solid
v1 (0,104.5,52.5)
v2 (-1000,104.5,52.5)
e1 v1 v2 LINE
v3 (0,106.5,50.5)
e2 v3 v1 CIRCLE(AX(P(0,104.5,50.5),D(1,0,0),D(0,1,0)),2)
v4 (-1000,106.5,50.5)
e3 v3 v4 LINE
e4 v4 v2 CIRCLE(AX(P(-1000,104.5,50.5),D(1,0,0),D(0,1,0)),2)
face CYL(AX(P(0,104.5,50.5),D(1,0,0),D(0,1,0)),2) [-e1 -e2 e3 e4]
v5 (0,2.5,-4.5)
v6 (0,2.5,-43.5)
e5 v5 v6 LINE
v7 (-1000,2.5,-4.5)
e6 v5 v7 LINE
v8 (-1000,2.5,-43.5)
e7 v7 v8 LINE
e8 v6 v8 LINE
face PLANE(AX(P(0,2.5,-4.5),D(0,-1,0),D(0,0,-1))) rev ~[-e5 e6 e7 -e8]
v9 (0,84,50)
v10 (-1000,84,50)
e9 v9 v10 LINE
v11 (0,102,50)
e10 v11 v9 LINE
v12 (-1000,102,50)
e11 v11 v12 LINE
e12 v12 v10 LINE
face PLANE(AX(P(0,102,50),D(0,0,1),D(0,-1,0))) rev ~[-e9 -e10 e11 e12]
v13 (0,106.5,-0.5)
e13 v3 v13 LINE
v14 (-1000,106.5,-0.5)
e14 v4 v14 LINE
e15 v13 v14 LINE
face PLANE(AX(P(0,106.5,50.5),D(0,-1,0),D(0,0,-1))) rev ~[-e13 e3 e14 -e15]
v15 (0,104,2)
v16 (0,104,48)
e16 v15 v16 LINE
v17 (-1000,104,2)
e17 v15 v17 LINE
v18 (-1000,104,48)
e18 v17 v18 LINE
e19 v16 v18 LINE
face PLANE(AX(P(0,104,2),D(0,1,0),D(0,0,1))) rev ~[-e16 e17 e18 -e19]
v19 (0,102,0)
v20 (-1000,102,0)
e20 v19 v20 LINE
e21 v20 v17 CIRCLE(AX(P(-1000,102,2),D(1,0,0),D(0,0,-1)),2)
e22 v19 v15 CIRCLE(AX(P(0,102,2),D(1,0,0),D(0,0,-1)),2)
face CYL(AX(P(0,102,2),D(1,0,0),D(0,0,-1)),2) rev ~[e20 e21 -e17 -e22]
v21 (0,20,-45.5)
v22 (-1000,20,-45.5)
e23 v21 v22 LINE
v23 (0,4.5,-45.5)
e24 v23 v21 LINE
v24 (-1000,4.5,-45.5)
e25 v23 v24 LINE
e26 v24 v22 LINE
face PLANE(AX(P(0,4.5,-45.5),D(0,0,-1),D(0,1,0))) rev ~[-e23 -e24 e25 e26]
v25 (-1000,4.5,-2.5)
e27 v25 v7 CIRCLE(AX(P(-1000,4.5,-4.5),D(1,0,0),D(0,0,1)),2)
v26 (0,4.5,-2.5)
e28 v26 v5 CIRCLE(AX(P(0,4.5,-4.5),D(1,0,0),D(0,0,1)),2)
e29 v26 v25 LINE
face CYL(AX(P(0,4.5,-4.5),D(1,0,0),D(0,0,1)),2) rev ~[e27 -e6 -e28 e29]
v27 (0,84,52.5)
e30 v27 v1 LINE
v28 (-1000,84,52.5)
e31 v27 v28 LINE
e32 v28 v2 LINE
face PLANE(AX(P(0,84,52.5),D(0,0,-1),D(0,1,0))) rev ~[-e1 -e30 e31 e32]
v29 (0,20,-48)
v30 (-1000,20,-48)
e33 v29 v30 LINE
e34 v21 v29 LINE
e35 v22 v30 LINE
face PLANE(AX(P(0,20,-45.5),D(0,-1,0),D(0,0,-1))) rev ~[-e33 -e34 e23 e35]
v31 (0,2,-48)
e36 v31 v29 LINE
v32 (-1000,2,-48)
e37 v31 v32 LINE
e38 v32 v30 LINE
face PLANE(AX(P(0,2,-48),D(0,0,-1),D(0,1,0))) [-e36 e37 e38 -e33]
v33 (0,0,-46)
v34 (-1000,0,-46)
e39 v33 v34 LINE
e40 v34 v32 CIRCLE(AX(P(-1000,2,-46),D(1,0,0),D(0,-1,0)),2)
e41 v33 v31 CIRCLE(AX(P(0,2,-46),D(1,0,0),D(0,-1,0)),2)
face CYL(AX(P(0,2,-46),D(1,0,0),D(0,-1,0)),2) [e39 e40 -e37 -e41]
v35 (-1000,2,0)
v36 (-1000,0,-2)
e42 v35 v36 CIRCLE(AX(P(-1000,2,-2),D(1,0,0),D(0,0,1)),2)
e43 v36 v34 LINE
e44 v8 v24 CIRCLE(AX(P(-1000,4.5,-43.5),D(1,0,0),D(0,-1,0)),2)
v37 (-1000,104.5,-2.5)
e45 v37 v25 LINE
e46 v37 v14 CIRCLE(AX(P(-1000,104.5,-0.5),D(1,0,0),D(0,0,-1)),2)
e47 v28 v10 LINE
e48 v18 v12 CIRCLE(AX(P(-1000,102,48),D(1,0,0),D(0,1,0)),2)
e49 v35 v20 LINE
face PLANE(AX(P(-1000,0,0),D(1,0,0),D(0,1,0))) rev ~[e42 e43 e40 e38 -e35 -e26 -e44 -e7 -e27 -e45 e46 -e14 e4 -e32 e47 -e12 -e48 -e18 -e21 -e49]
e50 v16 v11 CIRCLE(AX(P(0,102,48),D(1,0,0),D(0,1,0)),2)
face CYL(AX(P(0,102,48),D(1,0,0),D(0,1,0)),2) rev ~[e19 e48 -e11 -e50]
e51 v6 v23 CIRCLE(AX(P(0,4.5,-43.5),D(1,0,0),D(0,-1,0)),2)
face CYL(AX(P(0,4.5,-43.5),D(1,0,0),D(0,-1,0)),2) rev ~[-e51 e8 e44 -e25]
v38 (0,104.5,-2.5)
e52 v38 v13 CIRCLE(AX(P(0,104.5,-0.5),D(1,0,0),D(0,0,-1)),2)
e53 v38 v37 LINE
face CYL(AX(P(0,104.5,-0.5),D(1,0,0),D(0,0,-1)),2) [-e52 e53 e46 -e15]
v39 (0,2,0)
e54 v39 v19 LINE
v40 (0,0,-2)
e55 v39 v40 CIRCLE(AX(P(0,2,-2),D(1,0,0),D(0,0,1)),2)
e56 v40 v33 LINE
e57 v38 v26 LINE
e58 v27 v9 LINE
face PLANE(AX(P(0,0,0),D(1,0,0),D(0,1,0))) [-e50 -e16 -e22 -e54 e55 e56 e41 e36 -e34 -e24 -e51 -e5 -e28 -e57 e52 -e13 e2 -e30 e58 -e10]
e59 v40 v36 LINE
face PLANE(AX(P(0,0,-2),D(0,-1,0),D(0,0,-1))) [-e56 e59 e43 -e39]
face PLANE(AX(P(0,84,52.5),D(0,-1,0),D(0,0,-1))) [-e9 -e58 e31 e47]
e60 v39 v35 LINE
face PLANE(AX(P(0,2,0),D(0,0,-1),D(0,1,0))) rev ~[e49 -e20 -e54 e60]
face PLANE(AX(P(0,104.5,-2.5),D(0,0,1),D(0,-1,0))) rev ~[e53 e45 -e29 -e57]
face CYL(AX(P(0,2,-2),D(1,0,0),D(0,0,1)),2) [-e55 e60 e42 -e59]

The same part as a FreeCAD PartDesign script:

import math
import FreeCAD as App
import Part
import Sketcher

V = App.Vector

doc = App.newDocument("Part")
body = doc.addObject("PartDesign::Body", "Body")

sketch1 = body.newObject("Sketcher::SketchObject", "Sketch")
sketch1.AttachmentSupport = (doc.getObject("YZ_Plane"), [""])
sketch1.MapMode = "FlatFace"
sketch1.addGeometry([
    Part.LineSegment(V(102, 0, 0), V(2, 0, 0)),
    Part.ArcOfCircle(Part.Circle(V(2, -2, 0), V(0, 0, 1), 2), math.radians(90), math.radians(180)),
    Part.LineSegment(V(0, -2, 0), V(0, -46, 0)),
    Part.ArcOfCircle(Part.Circle(V(2, -46, 0), V(0, 0, 1), 2), math.radians(180), math.radians(270)),
    Part.LineSegment(V(2, -48, 0), V(20, -48, 0)),
    Part.LineSegment(V(20, -48, 0), V(20, -45.5, 0)),
    Part.LineSegment(V(20, -45.5, 0), V(4.5, -45.5, 0)),
    Part.ArcOfCircle(Part.Circle(V(4.5, -43.5, 0), V(0, 0, 1), 2), math.radians(180), math.radians(270)),
    Part.LineSegment(V(2.5, -43.5, 0), V(2.5, -4.5, 0)),
    Part.ArcOfCircle(Part.Circle(V(4.5, -4.5, 0), V(0, 0, 1), 2), math.radians(90), math.radians(180)),
    Part.LineSegment(V(4.5, -2.5, 0), V(104.5, -2.5, 0)),
    Part.ArcOfCircle(Part.Circle(V(104.5, -0.5, 0), V(0, 0, 1), 2), math.radians(-90), math.radians(0)),
    Part.LineSegment(V(106.5, -0.5, 0), V(106.5, 50.5, 0)),
    Part.ArcOfCircle(Part.Circle(V(104.5, 50.5, 0), V(0, 0, 1), 2), math.radians(0), math.radians(90)),
    Part.LineSegment(V(104.5, 52.5, 0), V(84, 52.5, 0)),
    Part.LineSegment(V(84, 52.5, 0), V(84, 50, 0)),
    Part.LineSegment(V(84, 50, 0), V(102, 50, 0)),
    Part.ArcOfCircle(Part.Circle(V(102, 48, 0), V(0, 0, 1), 2), math.radians(0), math.radians(90)),
    Part.LineSegment(V(104, 48, 0), V(104, 2, 0)),
    Part.ArcOfCircle(Part.Circle(V(102, 2, 0), V(0, 0, 1), 2), math.radians(-90), math.radians(0)),
], False)
sketch1.addConstraint([
    Sketcher.Constraint("Tangent", 0, 2, 1, 1),
    Sketcher.Constraint("Tangent", 1, 2, 2, 1),
    Sketcher.Constraint("Tangent", 2, 2, 3, 1),
    Sketcher.Constraint("Tangent", 3, 2, 4, 1),
    Sketcher.Constraint("Coincident", 4, 2, 5, 1),
    Sketcher.Constraint("Coincident", 5, 2, 6, 1),
    Sketcher.Constraint("Tangent", 6, 2, 7, 2),
    Sketcher.Constraint("Tangent", 7, 1, 8, 1),
    Sketcher.Constraint("Tangent", 8, 2, 9, 2),
    Sketcher.Constraint("Tangent", 9, 1, 10, 1),
    Sketcher.Constraint("Tangent", 10, 2, 11, 1),
    Sketcher.Constraint("Tangent", 11, 2, 12, 1),
    Sketcher.Constraint("Tangent", 12, 2, 13, 1),
    Sketcher.Constraint("Tangent", 13, 2, 14, 1),
    Sketcher.Constraint("Coincident", 14, 2, 15, 1),
    Sketcher.Constraint("Coincident", 15, 2, 16, 1),
    Sketcher.Constraint("Tangent", 16, 2, 17, 2),
    Sketcher.Constraint("Tangent", 17, 1, 18, 1),
    Sketcher.Constraint("Tangent", 18, 2, 19, 2),
    Sketcher.Constraint("Tangent", 19, 1, 0, 1),
    Sketcher.Constraint("Horizontal", 0),
    Sketcher.Constraint("Vertical", 2),
    Sketcher.Constraint("Horizontal", 4),
    Sketcher.Constraint("Vertical", 5),
    Sketcher.Constraint("Horizontal", 6),
    Sketcher.Constraint("Vertical", 8),
    Sketcher.Constraint("Horizontal", 10),
    Sketcher.Constraint("Vertical", 12),
    Sketcher.Constraint("Horizontal", 14),
    Sketcher.Constraint("Vertical", 15),
    Sketcher.Constraint("Horizontal", 16),
    Sketcher.Constraint("Vertical", 18),
    Sketcher.Constraint("Equal", 1, 3),
    Sketcher.Constraint("Equal", 3, 7),
    Sketcher.Constraint("Equal", 7, 9),
    Sketcher.Constraint("Equal", 9, 11),
    Sketcher.Constraint("Equal", 11, 13),
    Sketcher.Constraint("Equal", 13, 17),
    Sketcher.Constraint("Equal", 17, 19),
    Sketcher.Constraint("PointOnObject", 0, 2, -1),
    Sketcher.Constraint("PointOnObject", 1, 2, -2),
    Sketcher.Constraint("Equal", 0, 10),
    Sketcher.Constraint("Equal", 4, 16),
    Sketcher.Constraint("Equal", 5, 15),
    Sketcher.Constraint("Radius", 1, 2.0),
    Sketcher.Constraint("DistanceY", 5, 1, 5, 2, 2.5),
    Sketcher.Constraint("DistanceY", -1, 1, 17, 3, 48.0),
    Sketcher.Constraint("DistanceY", 3, 2, -1, 1, 48.0),
    Sketcher.Constraint("DistanceX", -1, 1, 4, 2, 20.0),
    Sketcher.Constraint("DistanceX", -1, 1, 17, 1, 104.0),
    Sketcher.Constraint("DistanceX", -1, 1, 7, 1, 2.5),
    Sketcher.Constraint("DistanceY", 9, 1, -1, 1, 2.5),
])
pad1 = body.newObject("PartDesign::Pad", "Pad")
pad1.Profile = sketch1
pad1.Length = 1000
pad1.Reversed = True

doc.recompute()
